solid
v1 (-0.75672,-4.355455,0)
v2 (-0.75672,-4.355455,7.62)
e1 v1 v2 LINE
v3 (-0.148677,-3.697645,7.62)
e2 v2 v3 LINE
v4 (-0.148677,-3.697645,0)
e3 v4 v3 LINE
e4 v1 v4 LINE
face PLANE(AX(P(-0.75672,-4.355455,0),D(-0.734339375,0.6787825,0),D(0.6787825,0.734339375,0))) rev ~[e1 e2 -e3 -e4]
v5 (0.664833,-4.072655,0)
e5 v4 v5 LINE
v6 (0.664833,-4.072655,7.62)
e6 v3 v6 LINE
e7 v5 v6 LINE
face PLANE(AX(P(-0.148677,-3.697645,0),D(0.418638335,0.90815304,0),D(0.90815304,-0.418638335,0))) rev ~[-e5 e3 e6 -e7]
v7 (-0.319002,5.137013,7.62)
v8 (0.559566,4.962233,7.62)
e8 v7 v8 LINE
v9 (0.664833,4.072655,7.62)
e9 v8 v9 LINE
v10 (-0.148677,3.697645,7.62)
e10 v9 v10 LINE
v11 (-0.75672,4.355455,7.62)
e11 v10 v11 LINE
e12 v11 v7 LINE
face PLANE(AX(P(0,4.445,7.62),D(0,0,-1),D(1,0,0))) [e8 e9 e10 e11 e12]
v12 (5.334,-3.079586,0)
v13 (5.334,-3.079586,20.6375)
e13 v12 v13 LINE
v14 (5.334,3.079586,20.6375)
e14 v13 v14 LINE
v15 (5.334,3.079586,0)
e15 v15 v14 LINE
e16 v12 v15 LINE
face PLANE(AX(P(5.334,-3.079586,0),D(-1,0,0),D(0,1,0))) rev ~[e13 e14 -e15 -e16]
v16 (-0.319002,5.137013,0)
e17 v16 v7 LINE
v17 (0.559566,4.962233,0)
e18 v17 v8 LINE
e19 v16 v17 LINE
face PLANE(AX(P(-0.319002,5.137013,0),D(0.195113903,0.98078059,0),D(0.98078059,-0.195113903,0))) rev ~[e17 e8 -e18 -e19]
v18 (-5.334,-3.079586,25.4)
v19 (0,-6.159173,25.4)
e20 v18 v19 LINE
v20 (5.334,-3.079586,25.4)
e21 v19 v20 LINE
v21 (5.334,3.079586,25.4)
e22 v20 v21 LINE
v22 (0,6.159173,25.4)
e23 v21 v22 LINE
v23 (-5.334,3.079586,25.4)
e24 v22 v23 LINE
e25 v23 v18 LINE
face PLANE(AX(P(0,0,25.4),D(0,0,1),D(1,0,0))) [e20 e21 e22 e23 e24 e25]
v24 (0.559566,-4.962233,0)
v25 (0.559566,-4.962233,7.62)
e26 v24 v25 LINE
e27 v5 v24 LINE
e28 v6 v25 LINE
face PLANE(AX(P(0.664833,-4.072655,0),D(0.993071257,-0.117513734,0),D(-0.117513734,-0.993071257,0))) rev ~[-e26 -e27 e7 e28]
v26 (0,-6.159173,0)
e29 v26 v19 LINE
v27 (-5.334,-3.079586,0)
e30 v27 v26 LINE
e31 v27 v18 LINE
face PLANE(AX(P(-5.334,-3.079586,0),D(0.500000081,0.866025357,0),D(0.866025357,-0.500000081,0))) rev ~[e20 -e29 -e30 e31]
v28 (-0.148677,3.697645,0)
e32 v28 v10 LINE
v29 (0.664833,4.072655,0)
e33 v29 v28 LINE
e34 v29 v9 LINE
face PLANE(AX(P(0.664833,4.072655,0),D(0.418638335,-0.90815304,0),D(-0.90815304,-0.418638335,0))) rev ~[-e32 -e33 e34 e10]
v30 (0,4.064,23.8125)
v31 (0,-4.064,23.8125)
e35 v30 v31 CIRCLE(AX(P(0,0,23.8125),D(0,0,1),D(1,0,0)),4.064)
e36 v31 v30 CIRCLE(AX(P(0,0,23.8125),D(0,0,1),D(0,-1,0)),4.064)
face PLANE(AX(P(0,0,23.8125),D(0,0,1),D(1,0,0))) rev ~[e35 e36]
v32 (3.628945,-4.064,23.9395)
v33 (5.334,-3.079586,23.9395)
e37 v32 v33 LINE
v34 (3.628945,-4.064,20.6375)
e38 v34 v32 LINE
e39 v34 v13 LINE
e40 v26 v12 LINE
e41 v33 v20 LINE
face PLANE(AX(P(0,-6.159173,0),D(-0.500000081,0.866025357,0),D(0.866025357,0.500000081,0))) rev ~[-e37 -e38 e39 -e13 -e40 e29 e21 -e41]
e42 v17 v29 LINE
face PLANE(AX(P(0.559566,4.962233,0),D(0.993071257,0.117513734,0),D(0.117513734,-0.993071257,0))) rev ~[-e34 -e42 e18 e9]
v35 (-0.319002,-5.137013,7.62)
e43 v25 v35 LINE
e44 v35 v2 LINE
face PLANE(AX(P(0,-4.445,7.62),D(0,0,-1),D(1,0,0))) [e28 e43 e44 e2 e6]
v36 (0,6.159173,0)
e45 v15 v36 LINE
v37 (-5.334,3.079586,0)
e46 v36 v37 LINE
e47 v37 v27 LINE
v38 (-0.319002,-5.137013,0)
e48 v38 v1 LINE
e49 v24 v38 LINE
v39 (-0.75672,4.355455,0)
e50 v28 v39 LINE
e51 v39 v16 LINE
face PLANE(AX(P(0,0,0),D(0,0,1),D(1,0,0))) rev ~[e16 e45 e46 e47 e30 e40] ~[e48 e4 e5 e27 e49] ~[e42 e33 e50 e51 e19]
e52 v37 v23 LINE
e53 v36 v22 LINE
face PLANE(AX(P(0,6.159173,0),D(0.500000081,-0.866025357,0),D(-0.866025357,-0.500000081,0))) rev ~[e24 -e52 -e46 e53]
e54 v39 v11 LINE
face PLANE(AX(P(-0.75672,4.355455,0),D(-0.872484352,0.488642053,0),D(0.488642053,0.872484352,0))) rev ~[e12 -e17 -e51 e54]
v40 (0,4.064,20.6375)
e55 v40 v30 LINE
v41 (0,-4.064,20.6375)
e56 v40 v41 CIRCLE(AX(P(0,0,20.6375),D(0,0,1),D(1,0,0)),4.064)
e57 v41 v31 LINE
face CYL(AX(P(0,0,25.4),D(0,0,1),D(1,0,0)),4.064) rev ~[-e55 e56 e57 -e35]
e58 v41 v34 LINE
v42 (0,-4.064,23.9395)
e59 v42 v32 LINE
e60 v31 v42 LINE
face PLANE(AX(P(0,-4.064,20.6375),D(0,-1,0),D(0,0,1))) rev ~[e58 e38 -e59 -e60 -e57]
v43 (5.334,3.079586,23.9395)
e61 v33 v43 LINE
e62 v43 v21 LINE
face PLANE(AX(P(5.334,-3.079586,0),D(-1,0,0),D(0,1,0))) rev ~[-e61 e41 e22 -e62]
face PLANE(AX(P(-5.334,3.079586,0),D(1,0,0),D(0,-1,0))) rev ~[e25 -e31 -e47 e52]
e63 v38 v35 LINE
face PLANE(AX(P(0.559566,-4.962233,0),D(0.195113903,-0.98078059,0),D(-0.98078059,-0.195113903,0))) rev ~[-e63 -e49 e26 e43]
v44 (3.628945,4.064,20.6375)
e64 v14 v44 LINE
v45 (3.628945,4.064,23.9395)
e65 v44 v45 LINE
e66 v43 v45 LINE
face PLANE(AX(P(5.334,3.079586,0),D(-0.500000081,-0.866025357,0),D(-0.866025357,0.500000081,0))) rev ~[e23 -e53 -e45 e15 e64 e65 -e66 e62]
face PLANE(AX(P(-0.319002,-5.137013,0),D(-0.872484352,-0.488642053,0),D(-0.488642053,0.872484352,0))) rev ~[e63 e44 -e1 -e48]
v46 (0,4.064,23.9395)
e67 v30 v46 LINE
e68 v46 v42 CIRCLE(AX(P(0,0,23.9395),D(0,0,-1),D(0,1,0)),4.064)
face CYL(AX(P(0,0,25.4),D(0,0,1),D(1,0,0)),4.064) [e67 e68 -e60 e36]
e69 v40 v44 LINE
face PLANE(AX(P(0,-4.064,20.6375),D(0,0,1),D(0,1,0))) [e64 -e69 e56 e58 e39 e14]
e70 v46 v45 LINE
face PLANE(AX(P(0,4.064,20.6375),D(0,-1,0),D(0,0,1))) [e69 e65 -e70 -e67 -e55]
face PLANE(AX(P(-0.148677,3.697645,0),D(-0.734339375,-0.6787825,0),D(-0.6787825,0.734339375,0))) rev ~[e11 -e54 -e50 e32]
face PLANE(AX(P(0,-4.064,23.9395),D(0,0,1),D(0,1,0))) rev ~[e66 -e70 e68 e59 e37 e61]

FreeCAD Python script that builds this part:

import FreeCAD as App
import Part
import Sketcher
from FreeCAD import Vector
Q = App.Units.Quantity


def add_polygon(sketch, points):
    """Adds a closed chain of lines whose ends are joined by coincident constraints."""
    first, n = sketch.GeometryCount, len(points)
    for a, b in zip(points, points[1:] + points[:1]):
        sketch.addGeometry(Part.LineSegment(App.Vector(*a, 0), App.Vector(*b, 0)), False)
    for i in range(n):
        sketch.addConstraint(Sketcher.Constraint("Coincident", first + i, 2, first + (i + 1) % n, 1))

doc = App.newDocument("Part")
body = doc.addObject("PartDesign::Body", "Body")

sketch1 = body.newObject("Sketcher::SketchObject", "Sketch")
sketch1.AttachmentSupport = (doc.getObject("XY_Plane"), [""])
sketch1.MapMode = "FlatFace"
add_polygon(sketch1, [(5.334, -3.079586), (5.334, 3.079586), (0, 6.159173), (-5.334, 3.079586), (-5.334, -3.079586), (0, -6.159173)])
sketch1.addConstraint(Sketcher.Constraint("Vertical", 0))
sketch1.addConstraint(Sketcher.Constraint("Vertical", 3))
sketch1.addConstraint(Sketcher.Constraint("Symmetric", 0, 2, 3, 2, -1, 1))
sketch1.addConstraint(Sketcher.Constraint("Symmetric", 1, 2, 4, 2, -1, 1))
sketch1.addConstraint(Sketcher.Constraint("PointOnObject", 1, 2, -2))
sketch1.addConstraint(Sketcher.Constraint("Parallel", 2, 5))
sketch1.addConstraint(Sketcher.Constraint("Horizontal", 0, 2, 2, 2))
sketch1.addConstraint(Sketcher.Constraint("Angle", 1, Q("149.999995 deg")))
sketch1.addConstraint(Sketcher.Constraint("DistanceX", -1, 1, 0, 2, Q("0.21 in")))
sketch1.addConstraint(Sketcher.Constraint("DistanceY", 0, 1, 0, 2, Q("6.159172 mm")))
pad1 = body.newObject("PartDesign::Pad", "Pad")
pad1.Profile = sketch1
pad1.Length = Q("1 in")

sketch2 = body.newObject("Sketcher::SketchObject", "Sketch001")
sketch2.AttachmentSupport = (doc.getObject("XY_Plane"), [""])
sketch2.MapMode = "FlatFace"
sketch2.AttachmentOffset = App.Placement(Vector(0, 0, 1 * 25.4), App.Rotation())
sketch2.addGeometry(Part.Circle(Vector(0, 0, 0), Vector(0, 0, 1), 4.064), False)
sketch2.addConstraint(Sketcher.Constraint("Coincident", 0, 3, -1, 1))
sketch2.addConstraint(Sketcher.Constraint("Diameter", 0, Q("0.32 in")))
pocket1 = body.newObject("PartDesign::Pocket", "Pocket")
pocket1.Profile = sketch2
pocket1.Length = Q("0.1875 in")

sketch3 = body.newObject("Sketcher::SketchObject", "Sketch002")
sketch3.AttachmentSupport = (doc.getObject("YZ_Plane"), [""])
sketch3.MapMode = "FlatFace"
add_polygon(sketch3, [(-4.064, 23.9395), (-4.064, 20.6375), (4.064, 20.6375), (4.064, 23.9395)])
sketch3.addConstraint(Sketcher.Constraint("Vertical", 0))
sketch3.addConstraint(Sketcher.Constraint("Horizontal", 1))
sketch3.addConstraint(Sketcher.Constraint("Vertical", 2))
sketch3.addConstraint(Sketcher.Constraint("Horizontal", 3))
sketch3.addConstraint(Sketcher.Constraint("DistanceX", 1, 1, 1, 2, Q("0.32 in")))
sketch3.addConstraint(Sketcher.Constraint("DistanceY", 0, 2, 0, 1, Q("0.13 in")))
sketch3.addConstraint(Sketcher.Constraint("DistanceX", 0, 2, -1, 1, Q("0.16 in")))
sketch3.addConstraint(Sketcher.Constraint("DistanceY", -1, 1, 0, 2, Q("0.8125 in")))
pocket2 = body.newObject("PartDesign::Pocket", "Pocket001")
pocket2.Profile = sketch3
pocket2.Type = "ThroughAll"
pocket2.Reversed = True

sketch4 = body.newObject("Sketcher::SketchObject", "Sketch003")
sketch4.AttachmentSupport = (doc.getObject("XY_Plane"), [""])
sketch4.MapMode = "FlatFace"
sketch4.AttachmentOffset = App.Placement(Vector(0, 0, 1 * 25.4), App.Rotation())
sketch4.addGeometry(Part.Circle(Vector(0, 0, 0), Vector(0, 0, 1), 4.064), False)
sketch4.addConstraint(Sketcher.Constraint("Coincident", 0, 3, -1, 1))
sketch4.addConstraint(Sketcher.Constraint("Diameter", 0, Q("0.32 in")))
pad2 = body.newObject("PartDesign::Pad", "Pad001")
pad2.Profile = sketch4
pad2.Length = Q("0.0625 in")
pad2.Reversed = True

sketch5 = body.newObject("Sketcher::SketchObject", "Sketch004")
sketch5.AttachmentSupport = (doc.getObject("XY_Plane"), [""])
sketch5.MapMode = "FlatFace"
add_polygon(sketch5, [(0.559566, 4.962233), (0.664833, 4.072655), (-0.148677, 3.697645), (-0.75672, 4.355455), (-0.319002, 5.137013)])
add_polygon(sketch5, [(-0.148677, -3.697645), (0.664833, -4.072655), (0.559566, -4.962233), (-0.319002, -5.137013), (-0.75672, -4.355455)])
sketch5.addConstraint(Sketcher.Constraint("Symmetric", 0, 2, 5, 2, -1))
sketch5.addConstraint(Sketcher.Constraint("Symmetric", 4, 2, 6, 2, -1))
sketch5.addConstraint(Sketcher.Constraint("Symmetric", 3, 2, 7, 2, -1))
sketch5.addConstraint(Sketcher.Constraint("Symmetric", 2, 2, 8, 2, -1))
sketch5.addConstraint(Sketcher.Constraint("Symmetric", 1, 2, 9, 2, -1))
sketch5.addConstraint(Sketcher.Constraint("Equal", 0, 1))
sketch5.addConstraint(Sketcher.Constraint("Equal", 1, 2))
sketch5.addConstraint(Sketcher.Constraint("Equal", 2, 3))
sketch5.addConstraint(Sketcher.Constraint("Equal", 3, 4))
sketch5.addConstraint(Sketcher.Constraint("DistanceY", 0, 2, 2, 2, Q("0.2828 mm")))
sketch5.addConstraint(Sketcher.Constraint("DistanceY", 5, 2, 1, 2, Q("7.7703 mm")))
sketch5.addConstraint(Sketcher.Constraint("DistanceX", 2, 2, -1, 1, Q("0.75672 mm")))
sketch5.addConstraint(Sketcher.Constraint("DistanceX", 1, 2, 0, 2, Q("0.81351 mm")))
sketch5.addConstraint(Sketcher.Constraint("DistanceY", 1, 2, 0, 2, Q("0.37501 mm")))
sketch5.addConstraint(Sketcher.Constraint("DistanceX", 3, 2, 4, 2, Q("0.878568 mm")))
pocket3 = body.newObject("PartDesign::Pocket", "Pocket002")
pocket3.Profile = sketch5
pocket3.Length = Q("0.3 in")
pocket3.Reversed = True

doc.recompute()
